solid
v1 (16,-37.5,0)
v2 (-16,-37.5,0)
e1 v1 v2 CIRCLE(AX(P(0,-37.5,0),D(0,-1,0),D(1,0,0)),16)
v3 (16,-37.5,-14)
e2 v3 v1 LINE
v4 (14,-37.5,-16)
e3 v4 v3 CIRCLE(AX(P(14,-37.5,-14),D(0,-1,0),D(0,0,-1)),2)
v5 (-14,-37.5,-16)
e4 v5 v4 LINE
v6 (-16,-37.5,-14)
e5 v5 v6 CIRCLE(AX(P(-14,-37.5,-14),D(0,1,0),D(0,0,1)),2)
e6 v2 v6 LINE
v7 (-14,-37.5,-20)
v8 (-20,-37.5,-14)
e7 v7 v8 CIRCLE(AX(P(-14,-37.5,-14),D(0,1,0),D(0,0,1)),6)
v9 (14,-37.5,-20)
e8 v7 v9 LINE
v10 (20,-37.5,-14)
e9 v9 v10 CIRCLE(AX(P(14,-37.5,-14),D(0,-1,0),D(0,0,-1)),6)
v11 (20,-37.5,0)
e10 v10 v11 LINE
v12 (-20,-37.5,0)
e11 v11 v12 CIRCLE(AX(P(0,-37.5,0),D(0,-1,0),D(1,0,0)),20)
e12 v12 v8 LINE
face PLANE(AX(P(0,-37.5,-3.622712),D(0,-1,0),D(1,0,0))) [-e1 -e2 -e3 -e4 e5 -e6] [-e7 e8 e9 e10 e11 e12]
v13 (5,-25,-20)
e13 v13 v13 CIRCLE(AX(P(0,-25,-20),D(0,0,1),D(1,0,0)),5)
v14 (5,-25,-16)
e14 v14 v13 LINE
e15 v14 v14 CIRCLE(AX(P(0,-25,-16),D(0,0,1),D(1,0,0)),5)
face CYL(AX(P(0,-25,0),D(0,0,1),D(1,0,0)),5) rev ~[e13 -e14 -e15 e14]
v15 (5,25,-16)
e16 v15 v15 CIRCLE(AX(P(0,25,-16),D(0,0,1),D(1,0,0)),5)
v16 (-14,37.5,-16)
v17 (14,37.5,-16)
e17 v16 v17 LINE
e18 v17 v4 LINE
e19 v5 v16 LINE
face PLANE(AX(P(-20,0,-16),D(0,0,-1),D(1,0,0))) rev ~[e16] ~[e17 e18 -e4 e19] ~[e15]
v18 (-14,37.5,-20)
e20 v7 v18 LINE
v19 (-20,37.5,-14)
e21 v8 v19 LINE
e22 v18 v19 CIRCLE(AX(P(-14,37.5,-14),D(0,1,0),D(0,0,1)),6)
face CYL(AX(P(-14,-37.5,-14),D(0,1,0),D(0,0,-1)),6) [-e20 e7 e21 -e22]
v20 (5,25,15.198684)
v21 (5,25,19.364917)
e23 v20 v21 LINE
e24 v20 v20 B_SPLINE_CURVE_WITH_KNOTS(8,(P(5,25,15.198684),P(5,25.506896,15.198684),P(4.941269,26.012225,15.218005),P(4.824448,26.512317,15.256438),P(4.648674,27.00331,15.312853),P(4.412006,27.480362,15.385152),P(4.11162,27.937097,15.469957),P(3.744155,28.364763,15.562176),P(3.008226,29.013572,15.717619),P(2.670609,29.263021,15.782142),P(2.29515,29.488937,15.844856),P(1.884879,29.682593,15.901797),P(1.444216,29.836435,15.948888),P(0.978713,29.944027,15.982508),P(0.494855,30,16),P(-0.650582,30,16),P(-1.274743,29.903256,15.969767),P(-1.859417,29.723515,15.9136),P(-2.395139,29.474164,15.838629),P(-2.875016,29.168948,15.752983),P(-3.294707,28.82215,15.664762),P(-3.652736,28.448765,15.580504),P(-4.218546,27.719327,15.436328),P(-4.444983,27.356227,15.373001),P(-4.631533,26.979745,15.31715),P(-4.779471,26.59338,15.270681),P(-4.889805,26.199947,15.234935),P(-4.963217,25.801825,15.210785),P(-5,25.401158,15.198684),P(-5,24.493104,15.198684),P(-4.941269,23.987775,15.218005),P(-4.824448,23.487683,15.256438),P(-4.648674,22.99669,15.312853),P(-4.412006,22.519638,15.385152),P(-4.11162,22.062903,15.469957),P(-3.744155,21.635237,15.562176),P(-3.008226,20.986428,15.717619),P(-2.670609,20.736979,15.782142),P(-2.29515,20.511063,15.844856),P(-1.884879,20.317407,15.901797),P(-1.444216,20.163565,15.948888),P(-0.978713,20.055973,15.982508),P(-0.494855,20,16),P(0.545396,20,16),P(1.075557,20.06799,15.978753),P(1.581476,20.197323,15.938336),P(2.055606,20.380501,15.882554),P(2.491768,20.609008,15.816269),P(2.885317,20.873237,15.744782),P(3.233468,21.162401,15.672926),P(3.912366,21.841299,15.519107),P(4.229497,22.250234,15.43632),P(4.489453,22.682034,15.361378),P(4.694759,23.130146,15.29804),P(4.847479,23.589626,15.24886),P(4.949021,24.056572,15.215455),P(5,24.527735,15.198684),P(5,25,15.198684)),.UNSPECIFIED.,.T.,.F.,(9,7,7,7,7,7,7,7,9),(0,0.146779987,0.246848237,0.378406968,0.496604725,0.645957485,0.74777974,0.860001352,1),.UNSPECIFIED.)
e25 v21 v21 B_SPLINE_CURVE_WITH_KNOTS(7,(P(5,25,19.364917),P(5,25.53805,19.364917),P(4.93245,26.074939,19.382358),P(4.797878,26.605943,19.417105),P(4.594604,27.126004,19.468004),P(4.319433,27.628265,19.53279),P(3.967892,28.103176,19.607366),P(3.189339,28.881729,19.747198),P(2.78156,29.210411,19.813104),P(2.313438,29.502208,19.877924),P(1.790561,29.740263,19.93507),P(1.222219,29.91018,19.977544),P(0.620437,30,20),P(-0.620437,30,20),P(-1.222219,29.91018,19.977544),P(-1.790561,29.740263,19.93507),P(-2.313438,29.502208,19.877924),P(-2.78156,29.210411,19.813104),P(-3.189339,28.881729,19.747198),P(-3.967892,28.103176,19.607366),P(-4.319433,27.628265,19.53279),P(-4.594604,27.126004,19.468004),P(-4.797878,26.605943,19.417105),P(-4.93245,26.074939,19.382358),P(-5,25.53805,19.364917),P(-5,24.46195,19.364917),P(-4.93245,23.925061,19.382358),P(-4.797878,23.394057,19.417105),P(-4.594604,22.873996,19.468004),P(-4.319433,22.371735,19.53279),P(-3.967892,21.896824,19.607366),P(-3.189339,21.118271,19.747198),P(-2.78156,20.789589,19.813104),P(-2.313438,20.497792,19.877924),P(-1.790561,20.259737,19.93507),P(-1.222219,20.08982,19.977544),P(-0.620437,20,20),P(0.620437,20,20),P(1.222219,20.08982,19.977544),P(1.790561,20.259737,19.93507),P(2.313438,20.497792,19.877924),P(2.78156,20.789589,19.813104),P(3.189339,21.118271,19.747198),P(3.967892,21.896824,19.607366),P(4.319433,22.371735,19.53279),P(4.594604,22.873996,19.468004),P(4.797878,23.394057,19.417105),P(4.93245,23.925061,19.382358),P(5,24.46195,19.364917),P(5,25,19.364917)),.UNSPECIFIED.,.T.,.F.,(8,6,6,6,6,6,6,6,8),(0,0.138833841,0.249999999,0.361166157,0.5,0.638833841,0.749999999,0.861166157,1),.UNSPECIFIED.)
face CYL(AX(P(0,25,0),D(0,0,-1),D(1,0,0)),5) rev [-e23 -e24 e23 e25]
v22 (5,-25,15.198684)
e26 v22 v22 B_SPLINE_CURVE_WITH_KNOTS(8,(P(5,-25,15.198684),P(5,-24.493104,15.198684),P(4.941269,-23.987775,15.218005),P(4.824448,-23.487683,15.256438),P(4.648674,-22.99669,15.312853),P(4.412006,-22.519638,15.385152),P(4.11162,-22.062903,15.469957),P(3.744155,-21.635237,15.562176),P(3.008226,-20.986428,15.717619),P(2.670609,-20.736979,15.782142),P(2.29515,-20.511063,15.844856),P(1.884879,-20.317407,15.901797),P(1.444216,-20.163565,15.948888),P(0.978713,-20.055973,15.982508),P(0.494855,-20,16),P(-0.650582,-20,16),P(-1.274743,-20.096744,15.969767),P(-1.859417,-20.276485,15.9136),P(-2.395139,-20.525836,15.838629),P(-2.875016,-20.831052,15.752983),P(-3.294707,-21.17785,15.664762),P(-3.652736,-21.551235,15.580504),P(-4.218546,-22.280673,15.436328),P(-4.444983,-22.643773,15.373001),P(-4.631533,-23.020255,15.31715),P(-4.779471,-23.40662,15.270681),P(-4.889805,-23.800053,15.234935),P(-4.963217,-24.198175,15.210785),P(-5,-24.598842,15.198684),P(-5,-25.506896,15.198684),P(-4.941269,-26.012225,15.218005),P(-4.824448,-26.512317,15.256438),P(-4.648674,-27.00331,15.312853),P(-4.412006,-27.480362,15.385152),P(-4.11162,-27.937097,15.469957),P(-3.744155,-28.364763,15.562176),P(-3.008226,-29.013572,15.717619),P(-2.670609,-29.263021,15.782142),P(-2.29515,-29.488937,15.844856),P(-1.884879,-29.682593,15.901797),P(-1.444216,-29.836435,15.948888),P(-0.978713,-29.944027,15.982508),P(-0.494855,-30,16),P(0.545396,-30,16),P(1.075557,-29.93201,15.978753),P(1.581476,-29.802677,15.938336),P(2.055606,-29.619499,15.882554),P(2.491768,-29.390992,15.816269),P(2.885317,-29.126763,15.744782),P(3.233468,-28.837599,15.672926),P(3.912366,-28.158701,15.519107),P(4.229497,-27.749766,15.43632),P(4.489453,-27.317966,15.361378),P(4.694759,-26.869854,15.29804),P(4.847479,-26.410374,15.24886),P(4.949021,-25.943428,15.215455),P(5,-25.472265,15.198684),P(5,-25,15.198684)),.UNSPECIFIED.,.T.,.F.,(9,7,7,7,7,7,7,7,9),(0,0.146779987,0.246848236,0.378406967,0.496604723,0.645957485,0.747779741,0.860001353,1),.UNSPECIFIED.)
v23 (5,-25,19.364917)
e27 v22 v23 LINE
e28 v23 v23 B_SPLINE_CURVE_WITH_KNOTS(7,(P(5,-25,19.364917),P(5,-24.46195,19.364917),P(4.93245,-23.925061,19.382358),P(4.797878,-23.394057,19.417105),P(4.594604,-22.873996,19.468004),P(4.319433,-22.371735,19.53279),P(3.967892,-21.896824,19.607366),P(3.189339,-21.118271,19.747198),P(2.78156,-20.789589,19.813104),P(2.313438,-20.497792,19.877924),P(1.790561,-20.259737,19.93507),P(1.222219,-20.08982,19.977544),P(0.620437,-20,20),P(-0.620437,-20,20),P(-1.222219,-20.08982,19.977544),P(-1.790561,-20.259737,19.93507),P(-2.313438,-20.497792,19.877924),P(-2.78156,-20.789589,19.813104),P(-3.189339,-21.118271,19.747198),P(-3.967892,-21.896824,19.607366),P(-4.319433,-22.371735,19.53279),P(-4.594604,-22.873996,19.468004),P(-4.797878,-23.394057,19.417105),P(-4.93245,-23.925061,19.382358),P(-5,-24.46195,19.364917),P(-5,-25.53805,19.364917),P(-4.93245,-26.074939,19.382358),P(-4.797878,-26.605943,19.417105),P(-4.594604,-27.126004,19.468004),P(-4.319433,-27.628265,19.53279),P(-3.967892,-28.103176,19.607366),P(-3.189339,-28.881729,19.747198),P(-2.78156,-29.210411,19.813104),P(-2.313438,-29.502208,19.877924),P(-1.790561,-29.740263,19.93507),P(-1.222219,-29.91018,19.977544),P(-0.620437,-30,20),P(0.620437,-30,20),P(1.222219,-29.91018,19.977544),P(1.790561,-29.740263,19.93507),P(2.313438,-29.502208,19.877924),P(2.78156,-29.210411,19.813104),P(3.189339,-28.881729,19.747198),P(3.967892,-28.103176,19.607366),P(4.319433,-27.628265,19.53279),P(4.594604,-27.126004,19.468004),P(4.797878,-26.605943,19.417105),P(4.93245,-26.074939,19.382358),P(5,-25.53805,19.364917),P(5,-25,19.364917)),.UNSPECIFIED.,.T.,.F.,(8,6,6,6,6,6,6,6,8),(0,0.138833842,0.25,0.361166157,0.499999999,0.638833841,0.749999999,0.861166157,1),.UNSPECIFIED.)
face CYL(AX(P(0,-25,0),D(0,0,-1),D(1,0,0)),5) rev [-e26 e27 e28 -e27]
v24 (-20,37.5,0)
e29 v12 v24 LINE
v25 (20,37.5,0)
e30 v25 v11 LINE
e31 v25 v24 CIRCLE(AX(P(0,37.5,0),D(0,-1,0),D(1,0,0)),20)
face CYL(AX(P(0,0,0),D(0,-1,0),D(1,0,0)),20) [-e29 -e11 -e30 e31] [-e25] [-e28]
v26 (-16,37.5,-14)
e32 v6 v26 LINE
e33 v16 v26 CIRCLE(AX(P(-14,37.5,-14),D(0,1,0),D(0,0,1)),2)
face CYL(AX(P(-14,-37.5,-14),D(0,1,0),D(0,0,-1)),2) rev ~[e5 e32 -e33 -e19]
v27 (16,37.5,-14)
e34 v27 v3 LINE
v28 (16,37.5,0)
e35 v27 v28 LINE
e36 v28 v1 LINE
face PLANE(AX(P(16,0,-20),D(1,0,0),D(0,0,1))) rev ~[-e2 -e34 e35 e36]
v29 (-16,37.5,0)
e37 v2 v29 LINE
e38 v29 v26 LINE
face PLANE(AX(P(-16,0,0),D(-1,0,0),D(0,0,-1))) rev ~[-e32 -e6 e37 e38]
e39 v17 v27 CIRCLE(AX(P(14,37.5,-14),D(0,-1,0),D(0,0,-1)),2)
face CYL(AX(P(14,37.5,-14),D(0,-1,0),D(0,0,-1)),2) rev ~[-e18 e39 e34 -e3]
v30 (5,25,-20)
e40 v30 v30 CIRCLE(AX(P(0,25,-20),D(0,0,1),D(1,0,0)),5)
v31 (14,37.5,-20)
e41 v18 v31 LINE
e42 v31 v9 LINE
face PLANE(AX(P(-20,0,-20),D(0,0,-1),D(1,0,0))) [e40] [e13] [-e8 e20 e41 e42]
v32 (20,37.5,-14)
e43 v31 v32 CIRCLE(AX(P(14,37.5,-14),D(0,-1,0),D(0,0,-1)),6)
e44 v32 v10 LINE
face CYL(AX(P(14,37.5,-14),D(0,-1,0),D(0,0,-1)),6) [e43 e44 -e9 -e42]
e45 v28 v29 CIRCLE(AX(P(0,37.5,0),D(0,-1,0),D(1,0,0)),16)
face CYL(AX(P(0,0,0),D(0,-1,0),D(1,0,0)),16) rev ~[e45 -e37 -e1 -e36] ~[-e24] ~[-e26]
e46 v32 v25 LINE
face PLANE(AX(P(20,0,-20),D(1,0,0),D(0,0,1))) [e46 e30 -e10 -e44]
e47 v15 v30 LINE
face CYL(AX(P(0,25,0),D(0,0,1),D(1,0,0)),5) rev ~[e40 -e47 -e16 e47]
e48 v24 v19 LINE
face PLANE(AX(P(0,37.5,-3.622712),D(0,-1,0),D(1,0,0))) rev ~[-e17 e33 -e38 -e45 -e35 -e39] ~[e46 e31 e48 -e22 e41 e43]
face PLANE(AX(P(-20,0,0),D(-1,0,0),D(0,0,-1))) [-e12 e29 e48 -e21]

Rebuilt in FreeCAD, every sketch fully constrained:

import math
import FreeCAD as App
import Part
import Sketcher
from FreeCAD import Vector
Q = App.Units.Quantity


def edges_at(feature, points):
    """Names of the edges that pass closest to the given points."""
    edges = feature.Shape.Edges
    near = lambda p: min(range(len(edges)), key=lambda i: edges[i].distToShape(Part.Vertex(*p))[0])
    return sorted({f"Edge{near(p) + 1}" for p in points})


def faces_at(feature, points):
    """Names of the faces that lie closest to the given points."""
    faces = feature.Shape.Faces
    near = lambda p: min(range(len(faces)), key=lambda i: faces[i].distToShape(Part.Vertex(*p))[0])
    return sorted({f"Face{near(p) + 1}" for p in points})

doc = App.newDocument("Part")
body = doc.addObject("PartDesign::Body", "Body")

# Sketch on XZ plane
sketch1 = doc.addObject("Sketcher::SketchObject", "Sketch")
body.addObject(sketch1)
sketch1.AttachmentSupport = (doc.XZ_Plane, [""])
sketch1.MapMode = "FlatFace"
sketch1.addGeometry([
    Part.LineSegment(Vector(-20, -20, 0), Vector(20, -20, 0)),
    Part.LineSegment(Vector(20, -20, 0), Vector(20, 0, 0)),
    Part.ArcOfCircle(Part.Circle(Vector(0, 0, 0), Vector(0, 0, 1), 20), math.radians(0), math.radians(180)),
    Part.LineSegment(Vector(-20, 0, 0), Vector(-20, -20, 0)),
], False)
sketch1.addConstraint([
    Sketcher.Constraint("Coincident", 0, 2, 1, 1),
    Sketcher.Constraint("Tangent", 1, 2, 2, 1),
    Sketcher.Constraint("Tangent", 2, 2, 3, 1),
    Sketcher.Constraint("Coincident", 3, 2, 0, 1),
    Sketcher.Constraint("Horizontal", 0),
    Sketcher.Constraint("Vertical", 1),
    Sketcher.Constraint("Vertical", 3),
    Sketcher.Constraint("Coincident", 2, 3, -1, 1),
    Sketcher.Constraint("Radius", 2, Q("20 mm")),
    Sketcher.Constraint("DistanceY", 1, 1, 1, 2, Q("20 mm")),
])
pad1 = doc.addObject("PartDesign::Pad", "Pad")
body.addObject(pad1)
pad1.Profile = sketch1
pad1.Length = 75
pad1.Midplane = True
doc.recompute()

fillet = doc.addObject("PartDesign::Fillet", "Fillet")
body.addObject(fillet)
fillet.Base = (pad1, edges_at(pad1, [(20, 0, -20), (-20, 0, -20)]))
fillet.Radius = 6
doc.recompute()

thickness = doc.addObject("PartDesign::Thickness", "Thickness")
body.addObject(thickness)
thickness.Base = (fillet, faces_at(fillet, [(0, -37.5, 0), (0, 37.5, 0)]))
thickness.Value = 4
thickness.Reversed = True
thickness.Join = "Arc"

# Sketch on XY plane
sketch2 = doc.addObject("Sketcher::SketchObject", "Sketch001")
body.addObject(sketch2)
sketch2.AttachmentSupport = (doc.XY_Plane, [""])
sketch2.MapMode = "FlatFace"
sketch2.addGeometry([
    Part.Circle(Vector(0, -25, 0), Vector(0, 0, 1), 5),
    Part.Circle(Vector(0, 25, 0), Vector(0, 0, 1), 5),
], False)
sketch2.addConstraint([
    Sketcher.Constraint("Equal", 0, 1),
    Sketcher.Constraint("Symmetric", 0, 3, 1, 3, -1, 1),
    Sketcher.Constraint("PointOnObject", 0, 3, -2),
    Sketcher.Constraint("Diameter", 0, Q("10 mm")),
    Sketcher.Constraint("DistanceY", 0, 3, -1, 1, Q("25 mm")),
])
pocket1 = doc.addObject("PartDesign::Pocket", "Pocket")
body.addObject(pocket1)
pocket1.Profile = sketch2
pocket1.Type = "ThroughAll"
pocket1.Midplane = True

doc.recompute()
